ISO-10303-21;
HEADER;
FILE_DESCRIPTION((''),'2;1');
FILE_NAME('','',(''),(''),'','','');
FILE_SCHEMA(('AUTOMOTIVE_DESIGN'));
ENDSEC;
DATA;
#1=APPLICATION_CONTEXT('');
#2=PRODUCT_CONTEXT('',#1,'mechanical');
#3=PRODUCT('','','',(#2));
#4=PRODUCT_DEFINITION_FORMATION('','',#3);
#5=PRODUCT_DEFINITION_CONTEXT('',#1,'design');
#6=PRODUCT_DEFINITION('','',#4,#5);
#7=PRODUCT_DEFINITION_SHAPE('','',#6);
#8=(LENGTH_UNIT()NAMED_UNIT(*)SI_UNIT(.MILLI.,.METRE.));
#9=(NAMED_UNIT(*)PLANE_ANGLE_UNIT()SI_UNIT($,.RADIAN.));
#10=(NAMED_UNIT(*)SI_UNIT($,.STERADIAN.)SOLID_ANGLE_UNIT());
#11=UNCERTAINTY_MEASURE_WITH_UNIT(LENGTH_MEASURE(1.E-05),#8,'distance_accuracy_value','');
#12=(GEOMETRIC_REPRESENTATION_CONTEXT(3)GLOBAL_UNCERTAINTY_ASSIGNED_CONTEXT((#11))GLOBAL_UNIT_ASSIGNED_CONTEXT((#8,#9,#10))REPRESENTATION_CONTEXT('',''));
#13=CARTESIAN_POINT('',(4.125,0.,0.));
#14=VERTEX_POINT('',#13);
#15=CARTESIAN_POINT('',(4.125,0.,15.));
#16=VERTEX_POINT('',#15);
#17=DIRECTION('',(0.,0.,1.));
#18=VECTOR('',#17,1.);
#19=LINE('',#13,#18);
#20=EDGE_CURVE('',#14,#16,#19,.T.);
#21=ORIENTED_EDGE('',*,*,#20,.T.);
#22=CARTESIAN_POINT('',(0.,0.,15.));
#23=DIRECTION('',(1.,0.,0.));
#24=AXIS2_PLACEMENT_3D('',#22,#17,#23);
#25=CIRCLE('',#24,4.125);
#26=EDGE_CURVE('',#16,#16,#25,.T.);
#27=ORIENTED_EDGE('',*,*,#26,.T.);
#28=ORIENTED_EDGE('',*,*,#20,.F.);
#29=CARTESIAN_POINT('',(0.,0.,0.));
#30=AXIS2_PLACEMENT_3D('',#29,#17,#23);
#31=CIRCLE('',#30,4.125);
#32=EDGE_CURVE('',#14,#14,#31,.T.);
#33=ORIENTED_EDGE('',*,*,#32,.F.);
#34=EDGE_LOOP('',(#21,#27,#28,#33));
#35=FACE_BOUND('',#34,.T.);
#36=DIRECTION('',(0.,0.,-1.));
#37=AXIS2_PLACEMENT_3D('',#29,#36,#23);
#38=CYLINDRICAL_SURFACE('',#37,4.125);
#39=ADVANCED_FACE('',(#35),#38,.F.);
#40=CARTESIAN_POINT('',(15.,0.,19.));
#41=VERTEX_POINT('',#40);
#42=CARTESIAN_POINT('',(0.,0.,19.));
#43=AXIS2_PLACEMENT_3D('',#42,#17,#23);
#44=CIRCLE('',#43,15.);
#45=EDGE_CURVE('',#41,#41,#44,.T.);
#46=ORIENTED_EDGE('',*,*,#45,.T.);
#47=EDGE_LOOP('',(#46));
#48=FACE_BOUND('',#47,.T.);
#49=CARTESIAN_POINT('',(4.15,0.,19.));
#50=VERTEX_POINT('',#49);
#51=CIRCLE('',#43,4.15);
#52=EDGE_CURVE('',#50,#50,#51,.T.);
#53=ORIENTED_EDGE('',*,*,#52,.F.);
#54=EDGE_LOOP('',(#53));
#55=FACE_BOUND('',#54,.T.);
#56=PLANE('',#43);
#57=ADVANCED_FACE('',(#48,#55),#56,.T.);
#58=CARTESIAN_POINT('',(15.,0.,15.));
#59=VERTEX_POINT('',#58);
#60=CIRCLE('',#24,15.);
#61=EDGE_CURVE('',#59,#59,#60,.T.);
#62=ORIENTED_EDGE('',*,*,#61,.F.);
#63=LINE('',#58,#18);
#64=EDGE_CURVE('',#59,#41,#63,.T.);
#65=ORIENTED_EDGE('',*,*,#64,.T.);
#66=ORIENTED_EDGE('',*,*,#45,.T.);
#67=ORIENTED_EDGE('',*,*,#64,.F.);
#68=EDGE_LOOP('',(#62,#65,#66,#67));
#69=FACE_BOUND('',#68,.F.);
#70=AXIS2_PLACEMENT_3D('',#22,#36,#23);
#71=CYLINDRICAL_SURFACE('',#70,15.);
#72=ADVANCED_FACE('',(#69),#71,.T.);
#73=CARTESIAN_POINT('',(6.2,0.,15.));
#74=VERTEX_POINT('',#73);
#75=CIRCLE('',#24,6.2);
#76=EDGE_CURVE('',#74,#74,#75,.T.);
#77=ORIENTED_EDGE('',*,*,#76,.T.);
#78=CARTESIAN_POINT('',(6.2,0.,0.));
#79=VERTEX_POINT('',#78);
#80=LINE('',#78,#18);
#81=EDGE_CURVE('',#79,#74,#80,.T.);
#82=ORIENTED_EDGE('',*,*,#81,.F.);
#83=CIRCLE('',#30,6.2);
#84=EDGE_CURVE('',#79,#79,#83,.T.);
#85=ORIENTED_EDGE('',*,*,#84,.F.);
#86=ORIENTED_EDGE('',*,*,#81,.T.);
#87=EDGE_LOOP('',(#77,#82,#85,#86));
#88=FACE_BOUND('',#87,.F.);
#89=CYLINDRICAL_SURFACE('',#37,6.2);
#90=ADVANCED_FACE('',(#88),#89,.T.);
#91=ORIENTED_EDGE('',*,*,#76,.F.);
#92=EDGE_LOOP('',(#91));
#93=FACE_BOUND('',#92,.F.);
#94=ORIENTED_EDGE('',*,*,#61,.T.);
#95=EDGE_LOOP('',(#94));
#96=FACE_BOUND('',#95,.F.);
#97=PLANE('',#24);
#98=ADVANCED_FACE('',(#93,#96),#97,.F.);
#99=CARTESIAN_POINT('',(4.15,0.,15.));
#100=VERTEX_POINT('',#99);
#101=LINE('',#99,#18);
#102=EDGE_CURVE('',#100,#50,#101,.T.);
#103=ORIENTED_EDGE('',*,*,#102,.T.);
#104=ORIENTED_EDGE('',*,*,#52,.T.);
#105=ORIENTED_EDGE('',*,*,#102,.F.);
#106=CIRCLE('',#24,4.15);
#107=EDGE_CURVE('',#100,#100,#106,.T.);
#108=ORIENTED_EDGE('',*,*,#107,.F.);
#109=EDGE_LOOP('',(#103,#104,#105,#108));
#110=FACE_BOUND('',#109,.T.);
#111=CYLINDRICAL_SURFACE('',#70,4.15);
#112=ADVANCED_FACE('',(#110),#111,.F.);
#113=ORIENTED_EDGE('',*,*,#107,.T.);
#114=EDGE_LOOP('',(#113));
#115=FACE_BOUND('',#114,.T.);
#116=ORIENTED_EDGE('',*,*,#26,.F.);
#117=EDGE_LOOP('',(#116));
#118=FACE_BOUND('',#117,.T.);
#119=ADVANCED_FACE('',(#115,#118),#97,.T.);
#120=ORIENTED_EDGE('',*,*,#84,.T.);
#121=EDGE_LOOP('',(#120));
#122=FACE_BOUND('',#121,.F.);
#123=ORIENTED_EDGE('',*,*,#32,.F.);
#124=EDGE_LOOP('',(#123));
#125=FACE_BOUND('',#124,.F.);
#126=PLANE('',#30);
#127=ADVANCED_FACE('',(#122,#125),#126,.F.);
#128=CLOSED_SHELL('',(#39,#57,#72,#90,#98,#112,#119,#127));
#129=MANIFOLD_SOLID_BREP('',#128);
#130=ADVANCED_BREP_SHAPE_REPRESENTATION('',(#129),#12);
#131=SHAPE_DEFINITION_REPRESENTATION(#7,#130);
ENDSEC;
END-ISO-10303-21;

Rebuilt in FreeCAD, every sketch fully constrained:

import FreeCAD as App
import Part
import Sketcher
Q = App.Units.Quantity

doc = App.newDocument("Part")
body = doc.addObject("PartDesign::Body", "Body")

# Sketch on XY plane
sketch1 = body.newObject("Sketcher::SketchObject", "Sketch")
sketch1.AttachmentSupport = (doc.getObject("XY_Plane"), [""])
sketch1.MapMode = "FlatFace"
sketch1.addGeometry([
    Part.Circle(App.Vector(0, 0, 0), App.Vector(0, 0, 1), 6.2),
    Part.Circle(App.Vector(0, 0, 0), App.Vector(0, 0, 1), 4.1),
], False)
sketch1.addConstraint([
    Sketcher.Constraint("Coincident", 0, 3, -1, 1),
    Sketcher.Constraint("Coincident", 1, 3, -1, 1),
    Sketcher.Constraint("Diameter", 0, Q("12.4 mm")),
    Sketcher.Constraint("Diameter", 1, Q("8.25 mm")),
])
pad1 = body.newObject("PartDesign::Pad", "Pad")
pad1.Profile = sketch1
pad1.Length = 15

# Sketch on XY plane
sketch2 = body.newObject("Sketcher::SketchObject", "Sketch001")
sketch2.AttachmentSupport = (doc.getObject("XY_Plane"), [""])
sketch2.MapMode = "FlatFace"
sketch2.AttachmentOffset = App.Placement(App.Vector(0, 0, 15), App.Rotation())
sketch2.addGeometry([
    Part.Circle(App.Vector(0, 0, 0), App.Vector(0, 0, 1), 15),
    Part.Circle(App.Vector(0, 0, 0), App.Vector(0, 0, 1), 4.2),
], False)
sketch2.addConstraint([
    Sketcher.Constraint("Coincident", 0, 3, -1, 1),
    Sketcher.Constraint("Coincident", 1, 3, -1, 1),
    Sketcher.Constraint("Diameter", 0, Q("30 mm")),
    Sketcher.Constraint("Diameter", 1, Q("8.3 mm")),
])
pad2 = body.newObject("PartDesign::Pad", "Pad001")
pad2.Profile = sketch2
pad2.Length = 4

doc.recompute()
